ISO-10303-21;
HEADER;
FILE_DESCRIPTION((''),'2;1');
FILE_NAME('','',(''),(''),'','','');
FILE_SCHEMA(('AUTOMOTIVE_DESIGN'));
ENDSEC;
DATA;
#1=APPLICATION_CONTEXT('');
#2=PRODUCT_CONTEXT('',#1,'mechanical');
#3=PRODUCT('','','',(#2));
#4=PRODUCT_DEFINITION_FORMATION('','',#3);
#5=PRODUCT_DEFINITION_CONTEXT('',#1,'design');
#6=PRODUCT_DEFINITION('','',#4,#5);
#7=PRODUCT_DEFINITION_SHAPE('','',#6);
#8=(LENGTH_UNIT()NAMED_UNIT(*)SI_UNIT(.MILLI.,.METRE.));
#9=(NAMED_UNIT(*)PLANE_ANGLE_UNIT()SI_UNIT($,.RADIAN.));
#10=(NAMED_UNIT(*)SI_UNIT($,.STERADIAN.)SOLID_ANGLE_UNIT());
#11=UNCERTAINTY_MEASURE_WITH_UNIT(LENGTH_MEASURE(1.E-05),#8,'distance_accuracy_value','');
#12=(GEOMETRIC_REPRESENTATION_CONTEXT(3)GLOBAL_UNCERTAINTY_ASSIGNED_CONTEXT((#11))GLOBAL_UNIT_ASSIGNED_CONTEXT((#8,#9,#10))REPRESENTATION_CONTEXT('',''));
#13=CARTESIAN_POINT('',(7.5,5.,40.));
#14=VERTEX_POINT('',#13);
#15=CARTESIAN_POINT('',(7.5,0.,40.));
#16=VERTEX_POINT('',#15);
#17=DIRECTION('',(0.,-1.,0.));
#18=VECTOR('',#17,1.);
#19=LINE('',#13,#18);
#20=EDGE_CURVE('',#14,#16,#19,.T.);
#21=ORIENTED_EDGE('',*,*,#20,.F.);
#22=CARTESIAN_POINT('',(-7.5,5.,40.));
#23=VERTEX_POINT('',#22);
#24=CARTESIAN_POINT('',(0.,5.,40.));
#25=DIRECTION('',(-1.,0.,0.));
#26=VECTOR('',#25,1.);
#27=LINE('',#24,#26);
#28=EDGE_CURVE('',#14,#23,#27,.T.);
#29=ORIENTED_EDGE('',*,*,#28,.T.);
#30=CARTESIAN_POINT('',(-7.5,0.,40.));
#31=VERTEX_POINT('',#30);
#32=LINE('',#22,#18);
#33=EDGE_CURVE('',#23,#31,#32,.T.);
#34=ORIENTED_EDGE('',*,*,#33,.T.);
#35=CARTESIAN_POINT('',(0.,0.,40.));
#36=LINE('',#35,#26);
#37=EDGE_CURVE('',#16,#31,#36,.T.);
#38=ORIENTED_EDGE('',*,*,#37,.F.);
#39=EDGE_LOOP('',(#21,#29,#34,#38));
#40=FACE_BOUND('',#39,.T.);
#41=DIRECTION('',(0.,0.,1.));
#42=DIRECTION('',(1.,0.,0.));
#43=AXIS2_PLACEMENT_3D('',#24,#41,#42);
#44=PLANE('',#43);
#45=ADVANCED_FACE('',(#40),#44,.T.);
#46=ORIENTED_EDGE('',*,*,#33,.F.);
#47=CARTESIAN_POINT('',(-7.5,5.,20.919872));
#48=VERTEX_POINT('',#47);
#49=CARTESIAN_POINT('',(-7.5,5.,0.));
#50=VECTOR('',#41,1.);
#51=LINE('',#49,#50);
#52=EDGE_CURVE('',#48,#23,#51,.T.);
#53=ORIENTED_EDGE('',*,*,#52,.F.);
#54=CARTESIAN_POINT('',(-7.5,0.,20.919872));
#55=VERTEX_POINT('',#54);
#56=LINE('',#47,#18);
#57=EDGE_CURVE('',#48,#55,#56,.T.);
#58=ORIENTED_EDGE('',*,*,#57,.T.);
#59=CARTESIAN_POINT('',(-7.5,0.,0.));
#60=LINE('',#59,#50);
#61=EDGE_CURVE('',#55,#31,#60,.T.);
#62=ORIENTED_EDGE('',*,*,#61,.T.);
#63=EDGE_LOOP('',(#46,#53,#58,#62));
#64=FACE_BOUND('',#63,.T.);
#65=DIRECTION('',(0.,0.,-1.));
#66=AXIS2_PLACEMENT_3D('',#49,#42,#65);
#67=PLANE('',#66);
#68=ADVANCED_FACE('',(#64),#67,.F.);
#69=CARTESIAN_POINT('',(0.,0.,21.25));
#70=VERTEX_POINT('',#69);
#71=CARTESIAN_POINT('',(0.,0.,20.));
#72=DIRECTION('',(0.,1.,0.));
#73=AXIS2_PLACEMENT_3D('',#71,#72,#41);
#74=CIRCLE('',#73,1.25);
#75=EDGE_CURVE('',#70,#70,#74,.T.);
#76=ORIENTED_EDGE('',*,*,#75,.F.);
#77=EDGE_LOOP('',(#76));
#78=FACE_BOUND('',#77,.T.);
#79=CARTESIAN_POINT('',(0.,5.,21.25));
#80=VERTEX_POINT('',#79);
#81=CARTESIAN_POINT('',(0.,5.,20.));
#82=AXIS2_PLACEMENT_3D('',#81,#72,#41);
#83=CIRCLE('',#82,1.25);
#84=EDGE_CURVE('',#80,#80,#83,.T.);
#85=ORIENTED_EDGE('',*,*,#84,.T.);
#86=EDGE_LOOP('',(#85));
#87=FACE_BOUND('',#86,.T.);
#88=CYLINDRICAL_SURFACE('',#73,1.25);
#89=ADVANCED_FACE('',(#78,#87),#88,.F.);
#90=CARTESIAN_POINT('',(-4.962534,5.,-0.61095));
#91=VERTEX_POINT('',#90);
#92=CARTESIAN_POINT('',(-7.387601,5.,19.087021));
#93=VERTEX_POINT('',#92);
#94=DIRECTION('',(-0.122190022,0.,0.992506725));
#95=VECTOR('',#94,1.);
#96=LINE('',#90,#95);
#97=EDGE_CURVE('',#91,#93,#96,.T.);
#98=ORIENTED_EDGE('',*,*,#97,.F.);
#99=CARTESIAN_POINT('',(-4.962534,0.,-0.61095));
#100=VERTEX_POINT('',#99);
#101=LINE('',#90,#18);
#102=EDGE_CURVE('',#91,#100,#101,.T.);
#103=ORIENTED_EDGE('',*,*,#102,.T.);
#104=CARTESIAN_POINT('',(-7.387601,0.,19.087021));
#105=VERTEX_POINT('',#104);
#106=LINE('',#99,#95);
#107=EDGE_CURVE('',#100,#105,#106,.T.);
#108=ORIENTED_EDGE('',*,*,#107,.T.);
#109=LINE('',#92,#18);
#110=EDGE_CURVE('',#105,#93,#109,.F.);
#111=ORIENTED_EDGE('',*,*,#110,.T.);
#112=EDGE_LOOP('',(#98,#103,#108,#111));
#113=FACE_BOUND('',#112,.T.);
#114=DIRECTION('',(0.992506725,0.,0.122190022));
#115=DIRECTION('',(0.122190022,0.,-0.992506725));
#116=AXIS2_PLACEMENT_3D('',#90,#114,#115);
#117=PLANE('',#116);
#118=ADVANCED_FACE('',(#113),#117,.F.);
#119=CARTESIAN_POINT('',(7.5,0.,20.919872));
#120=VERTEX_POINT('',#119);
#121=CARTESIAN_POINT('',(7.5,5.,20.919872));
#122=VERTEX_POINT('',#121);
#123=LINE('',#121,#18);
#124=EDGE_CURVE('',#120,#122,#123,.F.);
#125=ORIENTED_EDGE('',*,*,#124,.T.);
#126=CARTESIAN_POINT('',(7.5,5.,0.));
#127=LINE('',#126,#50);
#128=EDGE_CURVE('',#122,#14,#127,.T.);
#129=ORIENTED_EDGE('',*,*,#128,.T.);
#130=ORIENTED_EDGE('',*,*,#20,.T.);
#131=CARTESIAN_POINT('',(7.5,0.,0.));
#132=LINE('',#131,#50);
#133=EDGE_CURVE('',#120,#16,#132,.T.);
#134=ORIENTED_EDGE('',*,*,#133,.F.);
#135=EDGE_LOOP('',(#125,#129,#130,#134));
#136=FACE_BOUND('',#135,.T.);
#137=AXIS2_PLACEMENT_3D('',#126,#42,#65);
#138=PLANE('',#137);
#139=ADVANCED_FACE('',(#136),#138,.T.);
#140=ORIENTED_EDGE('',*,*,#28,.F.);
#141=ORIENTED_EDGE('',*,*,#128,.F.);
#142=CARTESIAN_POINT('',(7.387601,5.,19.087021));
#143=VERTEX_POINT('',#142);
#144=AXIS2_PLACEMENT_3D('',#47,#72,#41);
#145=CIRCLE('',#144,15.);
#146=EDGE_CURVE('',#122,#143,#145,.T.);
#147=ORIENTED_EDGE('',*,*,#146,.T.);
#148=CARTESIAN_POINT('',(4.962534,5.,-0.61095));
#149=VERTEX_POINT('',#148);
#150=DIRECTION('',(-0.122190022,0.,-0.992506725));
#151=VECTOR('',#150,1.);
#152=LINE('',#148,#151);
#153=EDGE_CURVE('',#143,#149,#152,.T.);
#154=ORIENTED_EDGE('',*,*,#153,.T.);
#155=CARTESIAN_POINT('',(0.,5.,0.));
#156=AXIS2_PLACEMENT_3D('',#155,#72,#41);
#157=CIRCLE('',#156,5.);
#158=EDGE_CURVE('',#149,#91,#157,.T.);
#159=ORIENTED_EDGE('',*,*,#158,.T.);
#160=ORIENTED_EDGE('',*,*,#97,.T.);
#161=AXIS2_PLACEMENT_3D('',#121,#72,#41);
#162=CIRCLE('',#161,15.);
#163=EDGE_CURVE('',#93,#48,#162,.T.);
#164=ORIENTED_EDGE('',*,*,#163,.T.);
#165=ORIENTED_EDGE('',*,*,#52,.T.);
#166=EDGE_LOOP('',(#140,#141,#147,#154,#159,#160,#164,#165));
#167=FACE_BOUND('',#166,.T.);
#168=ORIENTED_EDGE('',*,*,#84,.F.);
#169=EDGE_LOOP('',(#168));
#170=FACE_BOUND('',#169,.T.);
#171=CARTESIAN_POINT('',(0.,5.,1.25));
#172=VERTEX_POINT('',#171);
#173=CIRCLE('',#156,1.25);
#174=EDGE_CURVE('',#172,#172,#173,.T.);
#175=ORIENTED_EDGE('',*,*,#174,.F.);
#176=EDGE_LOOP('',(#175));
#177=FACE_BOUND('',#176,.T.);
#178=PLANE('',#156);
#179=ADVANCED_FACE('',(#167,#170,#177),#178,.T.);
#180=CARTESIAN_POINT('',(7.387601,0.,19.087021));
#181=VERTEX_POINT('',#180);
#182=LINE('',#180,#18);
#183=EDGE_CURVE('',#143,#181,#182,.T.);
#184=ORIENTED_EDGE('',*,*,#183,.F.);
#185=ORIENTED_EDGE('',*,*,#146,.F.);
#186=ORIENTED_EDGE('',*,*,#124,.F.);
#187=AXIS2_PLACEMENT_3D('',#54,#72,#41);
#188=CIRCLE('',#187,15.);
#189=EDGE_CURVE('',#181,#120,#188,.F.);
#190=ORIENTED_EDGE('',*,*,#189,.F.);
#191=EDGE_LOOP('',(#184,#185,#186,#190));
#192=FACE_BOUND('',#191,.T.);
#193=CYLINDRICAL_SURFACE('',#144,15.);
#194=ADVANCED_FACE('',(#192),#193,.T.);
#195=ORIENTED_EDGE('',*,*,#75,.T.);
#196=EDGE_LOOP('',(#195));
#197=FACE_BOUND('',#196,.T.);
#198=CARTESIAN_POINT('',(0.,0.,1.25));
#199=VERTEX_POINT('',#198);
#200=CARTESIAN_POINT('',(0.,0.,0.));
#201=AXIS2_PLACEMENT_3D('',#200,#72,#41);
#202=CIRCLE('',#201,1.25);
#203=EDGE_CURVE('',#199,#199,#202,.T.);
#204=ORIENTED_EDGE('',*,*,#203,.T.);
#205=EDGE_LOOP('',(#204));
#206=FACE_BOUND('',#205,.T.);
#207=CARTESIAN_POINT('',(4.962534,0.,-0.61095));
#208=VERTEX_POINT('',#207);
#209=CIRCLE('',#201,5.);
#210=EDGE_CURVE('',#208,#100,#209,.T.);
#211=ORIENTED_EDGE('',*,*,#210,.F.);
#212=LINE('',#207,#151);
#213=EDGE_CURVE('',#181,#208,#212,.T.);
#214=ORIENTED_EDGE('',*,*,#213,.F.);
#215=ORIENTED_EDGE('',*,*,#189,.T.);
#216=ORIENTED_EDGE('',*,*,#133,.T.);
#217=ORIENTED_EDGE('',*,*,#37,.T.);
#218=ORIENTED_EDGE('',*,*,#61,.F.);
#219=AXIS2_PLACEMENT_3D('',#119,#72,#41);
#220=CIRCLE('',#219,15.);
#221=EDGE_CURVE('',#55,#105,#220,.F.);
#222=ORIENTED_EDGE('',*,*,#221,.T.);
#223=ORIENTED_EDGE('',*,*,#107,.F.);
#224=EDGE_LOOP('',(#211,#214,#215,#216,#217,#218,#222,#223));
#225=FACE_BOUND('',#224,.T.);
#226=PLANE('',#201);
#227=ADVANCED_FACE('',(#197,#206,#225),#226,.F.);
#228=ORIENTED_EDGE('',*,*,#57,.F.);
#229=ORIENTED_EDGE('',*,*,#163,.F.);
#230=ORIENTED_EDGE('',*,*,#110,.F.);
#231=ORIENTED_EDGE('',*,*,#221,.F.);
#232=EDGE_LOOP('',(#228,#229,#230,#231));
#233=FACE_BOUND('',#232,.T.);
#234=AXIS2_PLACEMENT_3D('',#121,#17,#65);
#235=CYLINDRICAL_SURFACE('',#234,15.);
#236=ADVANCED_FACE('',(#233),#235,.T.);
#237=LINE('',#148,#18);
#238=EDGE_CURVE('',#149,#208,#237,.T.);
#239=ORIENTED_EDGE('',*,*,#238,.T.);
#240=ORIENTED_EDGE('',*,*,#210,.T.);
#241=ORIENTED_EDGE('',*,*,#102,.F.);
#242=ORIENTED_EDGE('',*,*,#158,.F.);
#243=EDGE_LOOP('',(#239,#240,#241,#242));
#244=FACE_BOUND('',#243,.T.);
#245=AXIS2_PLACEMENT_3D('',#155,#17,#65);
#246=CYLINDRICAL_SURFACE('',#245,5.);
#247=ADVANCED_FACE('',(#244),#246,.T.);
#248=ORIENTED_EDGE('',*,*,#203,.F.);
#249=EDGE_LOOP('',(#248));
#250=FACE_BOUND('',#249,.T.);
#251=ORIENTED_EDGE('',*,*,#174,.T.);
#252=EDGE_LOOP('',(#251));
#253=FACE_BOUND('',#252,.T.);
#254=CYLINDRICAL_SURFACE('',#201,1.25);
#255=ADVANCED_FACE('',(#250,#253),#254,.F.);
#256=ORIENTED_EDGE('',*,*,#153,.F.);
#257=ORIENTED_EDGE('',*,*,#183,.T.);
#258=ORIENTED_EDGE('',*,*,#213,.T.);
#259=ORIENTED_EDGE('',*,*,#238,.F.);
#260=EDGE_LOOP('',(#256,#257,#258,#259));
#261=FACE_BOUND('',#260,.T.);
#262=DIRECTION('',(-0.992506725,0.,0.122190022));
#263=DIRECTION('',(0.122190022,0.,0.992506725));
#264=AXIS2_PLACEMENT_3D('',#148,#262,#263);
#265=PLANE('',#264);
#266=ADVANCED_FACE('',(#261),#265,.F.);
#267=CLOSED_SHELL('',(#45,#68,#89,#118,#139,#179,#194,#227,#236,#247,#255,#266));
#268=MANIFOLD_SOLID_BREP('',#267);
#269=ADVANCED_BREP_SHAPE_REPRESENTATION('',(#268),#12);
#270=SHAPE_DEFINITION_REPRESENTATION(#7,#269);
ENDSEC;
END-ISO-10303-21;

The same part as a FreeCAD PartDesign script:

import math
import FreeCAD as App
import Part
import Sketcher
from FreeCAD import Vector


def edges_at(feature, points):
    """Names of the edges that pass closest to the given points."""
    edges = feature.Shape.Edges
    near = lambda p: min(range(len(edges)), key=lambda i: edges[i].distToShape(Part.Vertex(*p))[0])
    return sorted({f"Edge{near(p) + 1}" for p in points})

doc = App.newDocument("Part")
body = doc.addObject("PartDesign::Body", "Body")

sketch1 = body.newObject("Sketcher::SketchObject", "Sketch")
sketch1.AttachmentSupport = (doc.getObject("XZ_Plane"), [""])
sketch1.MapMode = "FlatFace"
sketch1.addGeometry(Part.LineSegment(Vector(-5, -1, 0), Vector(-8, 20, 0)), False)
sketch1.addGeometry(Part.LineSegment(Vector(-8, 20, 0), Vector(-8, 40, 0)), False)
sketch1.addGeometry(Part.LineSegment(Vector(-8, 40, 0), Vector(8, 40, 0)), False)
sketch1.addGeometry(Part.LineSegment(Vector(8, 40, 0), Vector(8, 20, 0)), False)
sketch1.addGeometry(Part.LineSegment(Vector(8, 20, 0), Vector(5, -1, 0)), False)
sketch1.addGeometry(Part.ArcOfCircle(Part.Circle(Vector(0, 0, 0), Vector(0, 0, 1), 5), math.radians(-173), math.radians(-7)), False)
sketch1.addConstraint(Sketcher.Constraint("Coincident", 0, 2, 1, 1))
sketch1.addConstraint(Sketcher.Constraint("Coincident", 1, 2, 2, 1))
sketch1.addConstraint(Sketcher.Constraint("Coincident", 2, 2, 3, 1))
sketch1.addConstraint(Sketcher.Constraint("Coincident", 3, 2, 4, 1))
sketch1.addConstraint(Sketcher.Constraint("Tangent", 4, 2, 5, 2))
sketch1.addConstraint(Sketcher.Constraint("Tangent", 5, 1, 0, 1))
sketch1.addConstraint(Sketcher.Constraint("Vertical", 1))
sketch1.addConstraint(Sketcher.Constraint("Horizontal", 2))
sketch1.addConstraint(Sketcher.Constraint("Vertical", 3))
sketch1.addConstraint(Sketcher.Constraint("Coincident", 5, 3, -1, 1))
sketch1.addConstraint(Sketcher.Constraint("Symmetric", 0, 2, 3, 2, -2))
sketch1.addConstraint(Sketcher.Constraint("Radius", 5, 5.0))
sketch1.addConstraint(Sketcher.Constraint("DistanceX", 2, 1, 2, 2, 15.0))
sketch1.addConstraint(Sketcher.Constraint("DistanceY", 1, 1, 1, 2, 20.0))
sketch1.addConstraint(Sketcher.Constraint("DistanceY", -1, 1, 0, 2, 20.0))
pad1 = body.newObject("PartDesign::Pad", "Pad")
pad1.Profile = sketch1
pad1.Length = 5
pad1.Reversed = True
doc.recompute()

fillet = body.newObject("PartDesign::Fillet", "Fillet")
fillet.Base = (pad1, edges_at(pad1, [(7.5, 2.5, 20), (-7.5, 2.5, 20)]))
fillet.Radius = 15

sketch2 = body.newObject("Sketcher::SketchObject", "Sketch001")
sketch2.AttachmentSupport = (doc.getObject("XZ_Plane"), [""])
sketch2.MapMode = "FlatFace"
sketch2.AttachmentOffset = App.Placement(Vector(0, 0, -5), App.Rotation())
sketch2.addGeometry(Part.Circle(Vector(0, 0, 0), Vector(0, 0, 1), 1.2), False)
sketch2.addGeometry(Part.Circle(Vector(0, 20, 0), Vector(0, 0, 1), 1.2), False)
sketch2.addConstraint(Sketcher.Constraint("Coincident", 0, 3, -1, 1))
sketch2.addConstraint(Sketcher.Constraint("Equal", 0, 1))
sketch2.addConstraint(Sketcher.Constraint("PointOnObject", 1, 3, -2))
sketch2.addConstraint(Sketcher.Constraint("Diameter", 0, 2.5))
sketch2.addConstraint(Sketcher.Constraint("DistanceY", -1, 1, 1, 3, 20.0))
pocket1 = body.newObject("PartDesign::Pocket", "Pocket")
pocket1.Profile = sketch2
pocket1.Type = "ThroughAll"
pocket1.Reversed = True

doc.recompute()
